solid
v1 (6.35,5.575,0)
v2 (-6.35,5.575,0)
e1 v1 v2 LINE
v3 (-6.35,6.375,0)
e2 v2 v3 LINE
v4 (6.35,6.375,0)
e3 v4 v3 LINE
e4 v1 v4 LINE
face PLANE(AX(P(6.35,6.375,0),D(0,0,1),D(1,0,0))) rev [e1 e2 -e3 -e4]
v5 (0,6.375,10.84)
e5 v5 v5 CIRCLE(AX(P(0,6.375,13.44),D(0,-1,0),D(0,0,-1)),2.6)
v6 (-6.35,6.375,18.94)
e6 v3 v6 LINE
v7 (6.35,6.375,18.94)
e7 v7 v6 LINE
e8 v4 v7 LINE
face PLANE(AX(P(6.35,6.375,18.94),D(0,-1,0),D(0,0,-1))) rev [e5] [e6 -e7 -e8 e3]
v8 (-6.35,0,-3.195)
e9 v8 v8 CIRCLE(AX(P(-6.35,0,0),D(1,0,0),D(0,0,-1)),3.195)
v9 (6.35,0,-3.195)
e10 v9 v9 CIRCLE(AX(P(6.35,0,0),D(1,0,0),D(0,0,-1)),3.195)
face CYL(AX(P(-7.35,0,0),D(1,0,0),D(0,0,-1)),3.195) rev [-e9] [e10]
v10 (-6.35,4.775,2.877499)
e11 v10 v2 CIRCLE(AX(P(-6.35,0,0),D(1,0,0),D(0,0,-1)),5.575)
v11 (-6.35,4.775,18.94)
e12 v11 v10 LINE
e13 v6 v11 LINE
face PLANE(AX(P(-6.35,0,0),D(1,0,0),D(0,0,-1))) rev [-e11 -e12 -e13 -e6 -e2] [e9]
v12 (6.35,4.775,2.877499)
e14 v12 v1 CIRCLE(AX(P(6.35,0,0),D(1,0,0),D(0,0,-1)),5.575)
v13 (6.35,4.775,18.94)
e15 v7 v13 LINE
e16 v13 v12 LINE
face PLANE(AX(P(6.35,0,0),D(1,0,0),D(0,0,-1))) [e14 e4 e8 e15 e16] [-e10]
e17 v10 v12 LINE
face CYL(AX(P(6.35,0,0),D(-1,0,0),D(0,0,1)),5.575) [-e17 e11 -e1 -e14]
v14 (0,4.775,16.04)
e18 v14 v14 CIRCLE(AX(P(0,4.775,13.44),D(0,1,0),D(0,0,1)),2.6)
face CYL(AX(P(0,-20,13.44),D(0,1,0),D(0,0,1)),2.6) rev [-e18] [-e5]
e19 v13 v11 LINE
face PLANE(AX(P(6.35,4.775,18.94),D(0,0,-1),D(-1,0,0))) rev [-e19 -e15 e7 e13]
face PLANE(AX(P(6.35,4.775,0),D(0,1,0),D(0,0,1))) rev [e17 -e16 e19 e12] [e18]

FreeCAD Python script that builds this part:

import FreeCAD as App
import Part
import Sketcher

V = App.Vector

doc = App.newDocument("Part")
body = doc.addObject("PartDesign::Body", "Body")

sketch1 = body.newObject("Sketcher::SketchObject", "Sketch")
sketch1.AttachmentSupport = (doc.getObject("YZ_Plane"), [""])
sketch1.MapMode = "FlatFace"
sketch1.addGeometry(Part.Circle(V(0, 0, 0), V(0, 0, 1), 6), False)
sketch1.addConstraint([
    Sketcher.Constraint("Coincident", 0, 3, -1, 1),
    Sketcher.Constraint("Diameter", 0, 11.15),
])
pad1 = body.newObject("PartDesign::Pad", "Pad")
pad1.Profile = sketch1
pad1.Length = 12.7
pad1.Midplane = True

sketch2 = body.newObject("Sketcher::SketchObject", "Sketch001")
sketch2.AttachmentSupport = (doc.getObject("YZ_Plane"), [""])
sketch2.MapMode = "FlatFace"
sketch2.addGeometry([
    Part.LineSegment(V(6.4, 18.9, 0), V(4.8, 18.9, 0)),
    Part.LineSegment(V(4.8, 18.9, 0), V(4.8, 0, 0)),
    Part.LineSegment(V(4.8, 0, 0), V(6.4, 0, 0)),
    Part.LineSegment(V(6.4, 0, 0), V(6.4, 18.9, 0)),
], False)
sketch2.addConstraint([
    Sketcher.Constraint("Coincident", 0, 2, 1, 1),
    Sketcher.Constraint("Coincident", 1, 2, 2, 1),
    Sketcher.Constraint("Coincident", 2, 2, 3, 1),
    Sketcher.Constraint("Coincident", 3, 2, 0, 1),
    Sketcher.Constraint("Horizontal", 0),
    Sketcher.Constraint("Vertical", 1),
    Sketcher.Constraint("Horizontal", 2),
    Sketcher.Constraint("Vertical", 3),
    Sketcher.Constraint("PointOnObject", 1, 2, -1),
    Sketcher.Constraint("DistanceX", 0, 2, 0, 1, 1.6),
    Sketcher.Constraint("DistanceY", 1, 2, 1, 1, 18.94),
    Sketcher.Constraint("DistanceX", -1, 1, 0, 2, 4.775),
])
pad2 = body.newObject("PartDesign::Pad", "Pad001")
pad2.Profile = sketch2
pad2.Length = 12.7
pad2.Midplane = True

sketch3 = body.newObject("Sketcher::SketchObject", "Sketch002")
sketch3.AttachmentSupport = (doc.getObject("YZ_Plane"), [""])
sketch3.MapMode = "FlatFace"
sketch3.addGeometry(Part.Circle(V(0, 0, 0), V(0, 0, 1), 3.2), False)
sketch3.addConstraint([
    Sketcher.Constraint("Coincident", 0, 3, -1, 1),
    Sketcher.Constraint("Diameter", 0, 6.39),
])
pocket1 = body.newObject("PartDesign::Pocket", "Pocket")
pocket1.Profile = sketch3
pocket1.Length = 14.7
pocket1.Midplane = True

sketch4 = body.newObject("Sketcher::SketchObject", "Sketch003")
sketch4.AttachmentSupport = (doc.getObject("XZ_Plane"), [""])
sketch4.MapMode = "FlatFace"
sketch4.addGeometry(Part.Circle(V(0, 13.4, 0), V(0, 0, 1), 2.6), False)
sketch4.addConstraint([
    Sketcher.Constraint("PointOnObject", 0, 3, -2),
    Sketcher.Constraint("Diameter", 0, 5.2),
    Sketcher.Constraint("DistanceY", -1, 1, 0, 3, 13.44),
])
pocket2 = body.newObject("PartDesign::Pocket", "Pocket001")
pocket2.Profile = sketch4
pocket2.Length = 40
pocket2.Midplane = True

doc.recompute()
